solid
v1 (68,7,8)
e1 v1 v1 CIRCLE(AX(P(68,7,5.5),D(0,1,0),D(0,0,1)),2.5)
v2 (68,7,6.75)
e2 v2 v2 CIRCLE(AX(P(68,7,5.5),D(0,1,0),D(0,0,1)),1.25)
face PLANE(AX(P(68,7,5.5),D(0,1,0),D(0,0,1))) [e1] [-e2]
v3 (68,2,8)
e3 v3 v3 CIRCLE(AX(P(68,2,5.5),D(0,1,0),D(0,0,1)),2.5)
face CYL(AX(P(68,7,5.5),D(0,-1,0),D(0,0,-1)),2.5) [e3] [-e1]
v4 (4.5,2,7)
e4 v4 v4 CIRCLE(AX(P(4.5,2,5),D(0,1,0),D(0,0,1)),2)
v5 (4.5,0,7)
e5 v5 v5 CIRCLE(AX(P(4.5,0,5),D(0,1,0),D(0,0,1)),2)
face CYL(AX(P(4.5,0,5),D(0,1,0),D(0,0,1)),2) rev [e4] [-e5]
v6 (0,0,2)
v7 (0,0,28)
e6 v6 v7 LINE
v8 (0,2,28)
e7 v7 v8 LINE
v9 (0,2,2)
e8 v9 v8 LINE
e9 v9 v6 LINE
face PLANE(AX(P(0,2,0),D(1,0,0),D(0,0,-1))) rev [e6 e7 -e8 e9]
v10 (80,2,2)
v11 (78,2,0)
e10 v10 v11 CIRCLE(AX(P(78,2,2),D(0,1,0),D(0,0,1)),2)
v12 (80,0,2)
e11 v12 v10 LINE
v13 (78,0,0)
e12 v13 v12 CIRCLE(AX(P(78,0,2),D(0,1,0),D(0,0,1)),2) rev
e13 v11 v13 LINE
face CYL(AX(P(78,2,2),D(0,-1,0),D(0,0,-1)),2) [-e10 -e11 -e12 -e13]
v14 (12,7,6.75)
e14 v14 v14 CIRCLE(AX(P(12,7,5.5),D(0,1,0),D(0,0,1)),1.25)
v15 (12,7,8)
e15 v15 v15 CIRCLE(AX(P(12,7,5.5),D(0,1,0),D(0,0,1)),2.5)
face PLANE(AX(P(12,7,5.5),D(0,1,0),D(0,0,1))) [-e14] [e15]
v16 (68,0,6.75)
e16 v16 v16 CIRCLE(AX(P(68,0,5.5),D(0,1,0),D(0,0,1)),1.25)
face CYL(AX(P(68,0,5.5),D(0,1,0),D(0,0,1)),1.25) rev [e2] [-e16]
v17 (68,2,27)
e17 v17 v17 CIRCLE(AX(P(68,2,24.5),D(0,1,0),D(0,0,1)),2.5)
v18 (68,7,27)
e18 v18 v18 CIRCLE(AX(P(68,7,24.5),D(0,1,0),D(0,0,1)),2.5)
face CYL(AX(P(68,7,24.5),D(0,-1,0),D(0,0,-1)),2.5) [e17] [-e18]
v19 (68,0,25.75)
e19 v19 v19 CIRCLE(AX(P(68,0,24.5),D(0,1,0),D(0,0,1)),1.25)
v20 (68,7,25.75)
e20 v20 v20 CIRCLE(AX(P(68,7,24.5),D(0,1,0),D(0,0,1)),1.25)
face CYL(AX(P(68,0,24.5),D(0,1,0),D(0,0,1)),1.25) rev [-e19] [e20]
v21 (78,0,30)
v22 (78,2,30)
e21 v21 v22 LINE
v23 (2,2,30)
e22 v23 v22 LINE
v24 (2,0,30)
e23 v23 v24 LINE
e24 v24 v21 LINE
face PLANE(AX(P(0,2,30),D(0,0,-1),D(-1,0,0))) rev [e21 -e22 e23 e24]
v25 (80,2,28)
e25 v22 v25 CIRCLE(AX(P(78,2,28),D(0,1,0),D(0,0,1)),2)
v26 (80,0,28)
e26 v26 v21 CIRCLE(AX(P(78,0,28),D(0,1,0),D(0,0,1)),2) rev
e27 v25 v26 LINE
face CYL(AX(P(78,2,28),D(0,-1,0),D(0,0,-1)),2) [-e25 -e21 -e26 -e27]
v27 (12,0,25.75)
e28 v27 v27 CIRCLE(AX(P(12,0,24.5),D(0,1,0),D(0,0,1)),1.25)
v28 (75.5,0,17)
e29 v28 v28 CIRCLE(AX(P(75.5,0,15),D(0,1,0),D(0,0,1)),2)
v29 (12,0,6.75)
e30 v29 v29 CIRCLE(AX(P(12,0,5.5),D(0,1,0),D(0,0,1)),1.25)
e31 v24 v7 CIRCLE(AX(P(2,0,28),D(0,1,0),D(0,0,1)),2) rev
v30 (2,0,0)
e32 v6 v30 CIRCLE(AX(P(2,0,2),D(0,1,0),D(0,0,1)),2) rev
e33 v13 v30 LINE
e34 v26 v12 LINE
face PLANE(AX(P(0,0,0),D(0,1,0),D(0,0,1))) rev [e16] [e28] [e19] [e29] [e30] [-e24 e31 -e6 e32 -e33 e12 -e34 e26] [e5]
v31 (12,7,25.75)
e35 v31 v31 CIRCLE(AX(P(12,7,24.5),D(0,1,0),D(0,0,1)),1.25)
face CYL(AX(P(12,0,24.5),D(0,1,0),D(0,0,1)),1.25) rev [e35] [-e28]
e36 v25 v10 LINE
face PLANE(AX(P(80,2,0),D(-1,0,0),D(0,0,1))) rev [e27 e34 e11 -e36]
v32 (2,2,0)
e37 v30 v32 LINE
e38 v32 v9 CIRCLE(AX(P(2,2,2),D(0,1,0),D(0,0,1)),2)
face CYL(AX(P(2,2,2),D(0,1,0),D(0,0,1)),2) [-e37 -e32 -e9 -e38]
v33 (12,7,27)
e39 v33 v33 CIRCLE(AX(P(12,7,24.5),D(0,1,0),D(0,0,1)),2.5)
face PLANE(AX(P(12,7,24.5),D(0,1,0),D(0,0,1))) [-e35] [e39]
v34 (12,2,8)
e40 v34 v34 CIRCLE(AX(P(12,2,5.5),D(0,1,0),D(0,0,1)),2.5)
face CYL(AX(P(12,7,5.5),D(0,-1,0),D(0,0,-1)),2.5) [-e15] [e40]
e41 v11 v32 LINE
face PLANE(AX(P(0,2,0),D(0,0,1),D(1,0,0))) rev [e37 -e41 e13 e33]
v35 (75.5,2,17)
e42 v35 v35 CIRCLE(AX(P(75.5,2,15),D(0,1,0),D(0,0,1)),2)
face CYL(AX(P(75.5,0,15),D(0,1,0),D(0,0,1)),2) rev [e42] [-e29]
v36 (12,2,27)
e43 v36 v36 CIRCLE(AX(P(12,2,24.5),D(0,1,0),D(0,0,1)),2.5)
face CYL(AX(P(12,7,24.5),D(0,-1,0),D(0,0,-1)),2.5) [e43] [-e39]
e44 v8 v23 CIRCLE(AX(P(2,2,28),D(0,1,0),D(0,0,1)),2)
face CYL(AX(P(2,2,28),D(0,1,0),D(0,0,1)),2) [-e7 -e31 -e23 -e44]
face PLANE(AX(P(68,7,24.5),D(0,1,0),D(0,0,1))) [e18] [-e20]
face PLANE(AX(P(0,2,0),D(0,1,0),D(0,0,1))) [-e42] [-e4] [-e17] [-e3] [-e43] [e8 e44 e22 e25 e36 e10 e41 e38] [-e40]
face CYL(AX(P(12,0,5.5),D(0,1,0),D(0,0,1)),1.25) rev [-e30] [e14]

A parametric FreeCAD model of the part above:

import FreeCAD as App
import Part
import Sketcher
from FreeCAD import Vector
Q = App.Units.Quantity


def edges_at(feature, points):
    """Names of the edges that pass closest to the given points."""
    edges = feature.Shape.Edges
    near = lambda p: min(range(len(edges)), key=lambda i: edges[i].distToShape(Part.Vertex(*p))[0])
    return sorted({f"Edge{near(p) + 1}" for p in points})


def add_polygon(sketch, points):
    """Adds a closed chain of lines whose ends are joined by coincident constraints."""
    first, n = sketch.GeometryCount, len(points)
    for a, b in zip(points, points[1:] + points[:1]):
        sketch.addGeometry(Part.LineSegment(App.Vector(*a, 0), App.Vector(*b, 0)), False)
    for i in range(n):
        sketch.addConstraint(Sketcher.Constraint("Coincident", first + i, 2, first + (i + 1) % n, 1))

doc = App.newDocument("Part")
body = doc.addObject("PartDesign::Body", "Body")

# Sketch on XZ plane
sketch1 = body.newObject("Sketcher::SketchObject", "Sketch")
sketch1.AttachmentSupport = (doc.getObject("XZ_Plane"), [""])
sketch1.MapMode = "FlatFace"
add_polygon(sketch1, [(0, 0), (0, 30), (80, 30), (80, 0)])  # lines 0-3
sketch1.addConstraint([
    Sketcher.Constraint("Vertical", 0),
    Sketcher.Constraint("Horizontal", 1),
    Sketcher.Constraint("Vertical", 2),
    Sketcher.Constraint("Horizontal", 3),
    Sketcher.Constraint("Coincident", 3, 2, -1, 1),
    Sketcher.Constraint("DistanceX", 1, 1, 1, 2, Q("80 mm")),
    Sketcher.Constraint("DistanceY", 0, 1, 0, 2, Q("30 mm")),
])
pad1 = body.newObject("PartDesign::Pad", "Pad")
pad1.Profile = sketch1
pad1.Length = 2
pad1.Reversed = True

# Sketch on XZ plane
sketch2 = body.newObject("Sketcher::SketchObject", "Sketch001")
sketch2.AttachmentSupport = (doc.getObject("XZ_Plane"), [""])
sketch2.MapMode = "FlatFace"
sketch2.AttachmentOffset = App.Placement(Vector(0, 0, -2), App.Rotation())
sketch2.addGeometry([
    Part.Circle(Vector(12, 5.5, 0), Vector(0, 0, 1), 2.5),
    Part.Circle(Vector(12, 24.5, 0), Vector(0, 0, 1), 2.5),
    Part.Circle(Vector(68, 5.5, 0), Vector(0, 0, 1), 2.5),
    Part.Circle(Vector(68, 24.5, 0), Vector(0, 0, 1), 2.5),
], False)
sketch2.addConstraint([
    Sketcher.Constraint("Equal", 0, 1),
    Sketcher.Constraint("Equal", 1, 2),
    Sketcher.Constraint("Equal", 2, 3),
    Sketcher.Constraint("Horizontal", 0, 3, 2, 3),
    Sketcher.Constraint("Horizontal", 1, 3, 3, 3),
    Sketcher.Constraint("Vertical", 0, 3, 1, 3),
    Sketcher.Constraint("Vertical", 2, 3, 3, 3),
    Sketcher.Constraint("Diameter", 0, Q("5 mm")),
    Sketcher.Constraint("DistanceX", -1, 1, 0, 3, Q("12 mm")),
    Sketcher.Constraint("DistanceX", -1, 1, 2, 3, Q("68 mm")),
    Sketcher.Constraint("DistanceY", 0, 3, 1, 3, Q("19 mm")),
    Sketcher.Constraint("DistanceY", -1, 1, 0, 3, Q("5.5 mm")),
])
pad2 = body.newObject("PartDesign::Pad", "Pad001")
pad2.Profile = sketch2
pad2.Length = 5
pad2.Reversed = True

# Sketch on XZ plane
sketch3 = body.newObject("Sketcher::SketchObject", "Sketch002")
sketch3.AttachmentSupport = (doc.getObject("XZ_Plane"), [""])
sketch3.MapMode = "FlatFace"
sketch3.AttachmentOffset = App.Placement(Vector(0, 0, -7), App.Rotation())
sketch3.addGeometry([
    Part.Circle(Vector(12, 5.5, 0), Vector(0, 0, 1), 1.2),
    Part.Circle(Vector(12, 24.5, 0), Vector(0, 0, 1), 1.2),
    Part.Circle(Vector(68, 5.5, 0), Vector(0, 0, 1), 1.2),
    Part.Circle(Vector(68, 24.5, 0), Vector(0, 0, 1), 1.2),
], False)
sketch3.addConstraint([
    Sketcher.Constraint("Equal", 0, 1),
    Sketcher.Constraint("Equal", 1, 2),
    Sketcher.Constraint("Equal", 2, 3),
    Sketcher.Constraint("Horizontal", 0, 3, 2, 3),
    Sketcher.Constraint("Horizontal", 1, 3, 3, 3),
    Sketcher.Constraint("Vertical", 0, 3, 1, 3),
    Sketcher.Constraint("Vertical", 2, 3, 3, 3),
    Sketcher.Constraint("Diameter", 0, Q("2.5 mm")),
    Sketcher.Constraint("DistanceX", -1, 1, 0, 3, Q("12 mm")),
    Sketcher.Constraint("DistanceX", -1, 1, 2, 3, Q("68 mm")),
    Sketcher.Constraint("DistanceY", 0, 3, 1, 3, Q("19 mm")),
    Sketcher.Constraint("DistanceY", -1, 1, 0, 3, Q("5.5 mm")),
])
pocket1 = body.newObject("PartDesign::Pocket", "Pocket")
pocket1.Profile = sketch3
pocket1.Type = "ThroughAll"
pocket1.Midplane = True

# Sketch on XZ plane
sketch4 = body.newObject("Sketcher::SketchObject", "Sketch003")
sketch4.AttachmentSupport = (doc.getObject("XZ_Plane"), [""])
sketch4.MapMode = "FlatFace"
sketch4.AttachmentOffset = App.Placement(Vector(0, 0, -2), App.Rotation())
sketch4.addGeometry([
    Part.Circle(Vector(4.5, 5, 0), Vector(0, 0, 1), 2),
    Part.Circle(Vector(75.5, 15, 0), Vector(0, 0, 1), 2),
], False)
sketch4.addConstraint([
    Sketcher.Constraint("Equal", 0, 1),
    Sketcher.Constraint("Diameter", 0, Q("4 mm")),
    Sketcher.Constraint("DistanceY", -1, 1, 0, 3, Q("5 mm")),
    Sketcher.Constraint("DistanceY", -1, 1, 1, 3, Q("15 mm")),
    Sketcher.Constraint("DistanceX", 0, 3, 1, 3, Q("71 mm")),
    Sketcher.Constraint("DistanceX", -1, 1, 0, 3, Q("4.5 mm")),
])
pocket2 = body.newObject("PartDesign::Pocket", "Pocket001")
pocket2.Profile = sketch4
pocket2.Type = "ThroughAll"
pocket2.Midplane = True
doc.recompute()

fillet = body.newObject("PartDesign::Fillet", "Fillet")
fillet.Base = (pocket2, edges_at(pocket2, [(0, 1, 30)]))
fillet.Radius = 2
doc.recompute()

fillet2 = body.newObject("PartDesign::Fillet", "Fillet001")
fillet2.Base = (fillet, edges_at(fillet, [(0, 1, 0)]))
fillet2.Radius = 2
doc.recompute()

fillet3 = body.newObject("PartDesign::Fillet", "Fillet002")
fillet3.Base = (fillet2, edges_at(fillet2, [(80, 1, 0)]))
fillet3.Radius = 2
doc.recompute()

fillet4 = body.newObject("PartDesign::Fillet", "Fillet003")
fillet4.Base = (fillet3, edges_at(fillet3, [(80, 1, 30)]))
fillet4.Radius = 2

doc.recompute()
